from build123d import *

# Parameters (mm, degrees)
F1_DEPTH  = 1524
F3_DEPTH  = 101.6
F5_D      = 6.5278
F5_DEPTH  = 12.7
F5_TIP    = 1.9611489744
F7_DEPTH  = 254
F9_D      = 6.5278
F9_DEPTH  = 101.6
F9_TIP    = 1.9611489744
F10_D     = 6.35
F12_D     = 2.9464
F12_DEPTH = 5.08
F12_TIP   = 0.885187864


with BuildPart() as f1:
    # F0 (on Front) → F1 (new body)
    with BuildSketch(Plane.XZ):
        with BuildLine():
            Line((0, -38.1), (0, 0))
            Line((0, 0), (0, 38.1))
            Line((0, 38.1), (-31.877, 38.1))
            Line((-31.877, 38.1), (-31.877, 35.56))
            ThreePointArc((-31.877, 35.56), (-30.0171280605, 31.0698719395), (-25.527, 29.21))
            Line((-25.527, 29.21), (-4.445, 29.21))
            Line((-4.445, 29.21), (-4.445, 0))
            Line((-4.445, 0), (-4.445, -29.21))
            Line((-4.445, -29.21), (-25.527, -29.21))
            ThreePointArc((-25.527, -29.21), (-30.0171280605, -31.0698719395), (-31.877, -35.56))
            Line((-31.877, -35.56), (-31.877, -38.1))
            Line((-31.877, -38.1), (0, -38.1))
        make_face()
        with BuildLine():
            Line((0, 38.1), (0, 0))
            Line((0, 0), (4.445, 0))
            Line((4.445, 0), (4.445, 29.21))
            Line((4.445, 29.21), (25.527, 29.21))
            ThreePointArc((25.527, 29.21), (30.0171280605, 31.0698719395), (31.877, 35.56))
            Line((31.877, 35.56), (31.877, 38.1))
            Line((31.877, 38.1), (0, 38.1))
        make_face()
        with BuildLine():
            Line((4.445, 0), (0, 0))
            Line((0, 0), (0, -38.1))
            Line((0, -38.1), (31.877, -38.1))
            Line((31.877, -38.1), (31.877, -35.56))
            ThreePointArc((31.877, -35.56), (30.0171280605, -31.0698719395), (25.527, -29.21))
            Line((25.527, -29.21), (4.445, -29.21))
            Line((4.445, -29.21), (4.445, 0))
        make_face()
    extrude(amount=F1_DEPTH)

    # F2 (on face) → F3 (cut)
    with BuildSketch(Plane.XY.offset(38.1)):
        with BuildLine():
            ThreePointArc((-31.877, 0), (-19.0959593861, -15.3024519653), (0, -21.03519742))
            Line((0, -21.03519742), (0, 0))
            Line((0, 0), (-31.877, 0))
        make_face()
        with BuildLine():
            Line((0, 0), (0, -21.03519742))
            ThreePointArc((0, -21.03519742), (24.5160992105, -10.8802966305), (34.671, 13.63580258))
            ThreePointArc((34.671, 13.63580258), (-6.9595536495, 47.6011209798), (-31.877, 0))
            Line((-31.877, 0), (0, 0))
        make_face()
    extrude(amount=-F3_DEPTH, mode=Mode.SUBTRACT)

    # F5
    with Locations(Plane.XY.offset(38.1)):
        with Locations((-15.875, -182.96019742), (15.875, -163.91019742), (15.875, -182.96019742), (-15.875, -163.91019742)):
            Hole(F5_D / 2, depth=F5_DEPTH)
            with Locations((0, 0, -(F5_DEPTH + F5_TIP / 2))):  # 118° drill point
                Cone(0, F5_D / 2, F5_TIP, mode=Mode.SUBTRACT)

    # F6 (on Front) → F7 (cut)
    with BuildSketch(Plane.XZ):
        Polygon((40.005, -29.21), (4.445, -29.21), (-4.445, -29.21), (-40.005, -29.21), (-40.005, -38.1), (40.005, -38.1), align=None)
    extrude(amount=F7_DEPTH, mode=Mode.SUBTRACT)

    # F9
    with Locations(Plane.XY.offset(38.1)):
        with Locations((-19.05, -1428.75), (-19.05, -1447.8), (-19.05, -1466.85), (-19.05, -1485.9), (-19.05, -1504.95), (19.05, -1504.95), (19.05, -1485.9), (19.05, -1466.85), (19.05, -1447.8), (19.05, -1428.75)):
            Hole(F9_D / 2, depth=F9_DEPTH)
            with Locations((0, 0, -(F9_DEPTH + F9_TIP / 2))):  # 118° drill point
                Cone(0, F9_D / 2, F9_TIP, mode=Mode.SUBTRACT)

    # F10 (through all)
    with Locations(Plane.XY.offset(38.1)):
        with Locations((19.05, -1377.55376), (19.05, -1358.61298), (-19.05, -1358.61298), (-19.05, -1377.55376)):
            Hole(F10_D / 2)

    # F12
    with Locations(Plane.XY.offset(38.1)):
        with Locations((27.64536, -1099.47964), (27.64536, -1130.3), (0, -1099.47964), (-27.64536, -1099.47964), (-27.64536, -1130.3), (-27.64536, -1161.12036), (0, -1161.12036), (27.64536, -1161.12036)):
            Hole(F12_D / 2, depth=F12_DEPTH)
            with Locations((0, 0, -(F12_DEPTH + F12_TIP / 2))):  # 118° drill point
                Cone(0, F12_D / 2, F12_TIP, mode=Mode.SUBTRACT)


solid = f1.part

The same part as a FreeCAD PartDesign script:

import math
import FreeCAD as App
import Part
import Sketcher
Q = App.Units.Quantity


def add_polygon(sketch, points):
    """Adds a closed chain of lines whose ends are joined by coincident constraints."""
    first, n = sketch.GeometryCount, len(points)
    for a, b in zip(points, points[1:] + points[:1]):
        sketch.addGeometry(Part.LineSegment(App.Vector(*a, 0), App.Vector(*b, 0)), False)
    for i in range(n):
        sketch.addConstraint(Sketcher.Constraint("Coincident", first + i, 2, first + (i + 1) % n, 1))

doc = App.newDocument("Part")
body = doc.addObject("PartDesign::Body", "Body")

# Sketch on XZ plane
sketch1 = body.newObject("Sketcher::SketchObject", "Sketch")
sketch1.AttachmentSupport = (doc.getObject("XZ_Plane"), [""])
sketch1.MapMode = "FlatFace"
sketch1.addGeometry([
    Part.LineSegment(App.Vector(4.4, 29.2, 0), App.Vector(25.5, 29.2, 0)),  # 0
    Part.ArcOfCircle(Part.Circle(App.Vector(25.5, 35.6, 0), App.Vector(0, 0, 1), 6.3), math.radians(-90), math.radians(0)),  # 1
    Part.LineSegment(App.Vector(31.9, 35.6, 0), App.Vector(31.9, 38.1, 0)),  # 2
    Part.LineSegment(App.Vector(31.9, 38.1, 0), App.Vector(-31.9, 38.1, 0)),  # 3
    Part.LineSegment(App.Vector(-31.9, 38.1, 0), App.Vector(-31.9, 35.6, 0)),  # 4
    Part.ArcOfCircle(Part.Circle(App.Vector(-25.5, 35.6, 0), App.Vector(0, 0, 1), 6.3), math.radians(180), math.radians(270)),  # 5
    Part.LineSegment(App.Vector(-25.5, 29.2, 0), App.Vector(-4.4, 29.2, 0)),  # 6
    Part.LineSegment(App.Vector(-4.4, 29.2, 0), App.Vector(-4.4, -29.2, 0)),  # 7
    Part.LineSegment(App.Vector(-4.4, -29.2, 0), App.Vector(-25.5, -29.2, 0)),  # 8
    Part.ArcOfCircle(Part.Circle(App.Vector(-25.5, -35.6, 0), App.Vector(0, 0, 1), 6.3), math.radians(90), math.radians(180)),  # 9
    Part.LineSegment(App.Vector(-31.9, -35.6, 0), App.Vector(-31.9, -38.1, 0)),  # 10
    Part.LineSegment(App.Vector(-31.9, -38.1, 0), App.Vector(31.9, -38.1, 0)),  # 11
    Part.LineSegment(App.Vector(31.9, -38.1, 0), App.Vector(31.9, -35.6, 0)),  # 12
    Part.ArcOfCircle(Part.Circle(App.Vector(25.5, -35.6, 0), App.Vector(0, 0, 1), 6.3), math.radians(0), math.radians(90)),  # 13
    Part.LineSegment(App.Vector(25.5, -29.2, 0), App.Vector(4.4, -29.2, 0)),  # 14
    Part.LineSegment(App.Vector(4.4, -29.2, 0), App.Vector(4.4, 29.2, 0)),  # 15
], False)
sketch1.addConstraint([
    Sketcher.Constraint("Tangent", 0, 2, 1, 1),
    Sketcher.Constraint("Tangent", 1, 2, 2, 1),
    Sketcher.Constraint("Coincident", 2, 2, 3, 1),
    Sketcher.Constraint("Coincident", 3, 2, 4, 1),
    Sketcher.Constraint("Tangent", 4, 2, 5, 1),
    Sketcher.Constraint("Tangent", 5, 2, 6, 1),
    Sketcher.Constraint("Coincident", 6, 2, 7, 1),
    Sketcher.Constraint("Coincident", 7, 2, 8, 1),
    Sketcher.Constraint("Tangent", 8, 2, 9, 1),
    Sketcher.Constraint("Tangent", 9, 2, 10, 1),
    Sketcher.Constraint("Coincident", 10, 2, 11, 1),
    Sketcher.Constraint("Coincident", 11, 2, 12, 1),
    Sketcher.Constraint("Tangent", 12, 2, 13, 1),
    Sketcher.Constraint("Tangent", 13, 2, 14, 1),
    Sketcher.Constraint("Coincident", 14, 2, 15, 1),
    Sketcher.Constraint("Coincident", 15, 2, 0, 1),
    Sketcher.Constraint("Horizontal", 0),
    Sketcher.Constraint("Vertical", 2),
    Sketcher.Constraint("Horizontal", 3),
    Sketcher.Constraint("Vertical", 4),
    Sketcher.Constraint("Horizontal", 6),
    Sketcher.Constraint("Vertical", 7),
    Sketcher.Constraint("Horizontal", 8),
    Sketcher.Constraint("Vertical", 10),
    Sketcher.Constraint("Horizontal", 11),
    Sketcher.Constraint("Vertical", 12),
    Sketcher.Constraint("Horizontal", 14),
    Sketcher.Constraint("Vertical", 15),
    Sketcher.Constraint("Equal", 1, 5),
    Sketcher.Constraint("Equal", 5, 9),
    Sketcher.Constraint("Equal", 9, 13),
    Sketcher.Constraint("Symmetric", 1, 3, 9, 3, -1, 1),
    Sketcher.Constraint("Symmetric", 5, 3, 13, 3, -1, 1),
    Sketcher.Constraint("Symmetric", 1, 3, 5, 3, -2),
    Sketcher.Constraint("Equal", 0, 6),
    Sketcher.Constraint("Equal", 4, 10),
    Sketcher.Constraint("Radius", 1, Q("0.25 in")),
    Sketcher.Constraint("DistanceY", 2, 1, 2, 2, Q("0.1 in")),
    Sketcher.Constraint("DistanceY", 7, 2, 7, 1, Q("2.3 in")),
    Sketcher.Constraint("DistanceX", 0, 1, 0, 2, Q("0.83 in")),
    Sketcher.Constraint("DistanceX", 3, 2, 3, 1, Q("2.51 in")),
])
pad1 = body.newObject("PartDesign::Pad", "Pad")
pad1.Profile = sketch1
pad1.Length = Q("60 in")

# Sketch on XY plane
sketch2 = body.newObject("Sketcher::SketchObject", "Sketch001")
sketch2.AttachmentSupport = (doc.getObject("XY_Plane"), [""])
sketch2.MapMode = "FlatFace"
sketch2.AttachmentOffset = App.Placement(App.Vector(0, 0, 1.5 * 25.4), App.Rotation())
sketch2.addGeometry([
    Part.ArcOfCircle(Part.Circle(App.Vector(0, 14, 0), App.Vector(0, 0, 1), 35), math.radians(-157), math.radians(-90)),
    Part.ArcOfCircle(Part.Circle(App.Vector(0, 14, 0), App.Vector(0, 0, 1), 35), math.radians(-90), math.radians(0)),
    Part.ArcOfCircle(Part.Circle(App.Vector(0, 14, 0), App.Vector(0, 0, 1), 35), math.radians(0), math.radians(203)),
], False)
sketch2.addConstraint([
    Sketcher.Constraint("Tangent", 0, 2, 1, 1),
    Sketcher.Constraint("Tangent", 1, 2, 2, 1),
    Sketcher.Constraint("Tangent", 2, 2, 0, 1),
    Sketcher.Constraint("PointOnObject", 0, 3, -2),
    Sketcher.Constraint("PointOnObject", 0, 2, -2),
    Sketcher.Constraint("PointOnObject", 2, 2, -1),
    Sketcher.Constraint("Horizontal", 2, 3, 1, 2),
    Sketcher.Constraint("Radius", 0, Q("1.365 in")),
    Sketcher.Constraint("DistanceX", 2, 2, 1, 2, Q("2.62 in")),
])
pocket1 = body.newObject("PartDesign::Pocket", "Pocket")
pocket1.Profile = sketch2
pocket1.Length = Q("4 in")

# Sketch on XY plane
sketch3 = body.newObject("Sketcher::SketchObject", "Sketch002")
sketch3.AttachmentSupport = (doc.getObject("XY_Plane"), [""])
sketch3.MapMode = "FlatFace"
sketch3.AttachmentOffset = App.Placement(App.Vector(0, 0, 1.5 * 25.4), App.Rotation())
sketch3.addGeometry([
    Part.Circle(App.Vector(-15.9, -183, 0), App.Vector(0, 0, 1), 3.3),
    Part.Circle(App.Vector(15.9, -163.9, 0), App.Vector(0, 0, 1), 3.3),
    Part.Circle(App.Vector(15.9, -183, 0), App.Vector(0, 0, 1), 3.3),
    Part.Circle(App.Vector(-15.9, -163.9, 0), App.Vector(0, 0, 1), 3.3),
], False)
sketch3.addConstraint([
    Sketcher.Constraint("Equal", 0, 1),
    Sketcher.Constraint("Equal", 1, 2),
    Sketcher.Constraint("Equal", 2, 3),
    Sketcher.Constraint("Symmetric", 0, 3, 2, 3, -2),
    Sketcher.Constraint("Symmetric", 1, 3, 3, 3, -2),
    Sketcher.Constraint("Vertical", 1, 3, 2, 3),
    Sketcher.Constraint("Diameter", 0, Q("0.257 in")),
    Sketcher.Constraint("DistanceX", 0, 3, 1, 3, Q("1.25 in")),
    Sketcher.Constraint("DistanceY", 0, 3, 1, 3, Q("0.75 in")),
    Sketcher.Constraint("DistanceY", 0, 3, -1, 1, 182.960197),
])
doc.recompute()
hole = body.newObject("PartDesign::Hole", "Hole")
hole.Profile = sketch3
hole.ThreadType = "None"
hole.Diameter = Q("0.257 in")
hole.DepthType = "Dimension"
hole.Depth = Q("0.5 in")
hole.DrillPoint = "Angled"
hole.DrillPointAngle = 118

# Sketch on XZ plane
sketch4 = body.newObject("Sketcher::SketchObject", "Sketch003")
sketch4.AttachmentSupport = (doc.getObject("XZ_Plane"), [""])
sketch4.MapMode = "FlatFace"
add_polygon(sketch4, [(40, -29), (-40, -29), (-40, -38), (40, -38)])  # lines 0-3
sketch4.addConstraint([
    Sketcher.Constraint("Horizontal", 0),
    Sketcher.Constraint("Vertical", 1),
    Sketcher.Constraint("Horizontal", 2),
    Sketcher.Constraint("Vertical", 3),
    Sketcher.Constraint("DistanceX", 0, 2, 0, 1, Q("3.15 in")),
    Sketcher.Constraint("DistanceY", 1, 2, 1, 1, Q("0.35 in")),
    Sketcher.Constraint("DistanceY", 1, 2, -1, 1, Q("1.5 in")),
    Sketcher.Constraint("DistanceX", 0, 2, -1, 1, Q("1.575 in")),
])
pocket2 = body.newObject("PartDesign::Pocket", "Pocket001")
pocket2.Profile = sketch4
pocket2.Length = Q("10 in")
pocket2.Reversed = True

# Sketch on XY plane
sketch5 = body.newObject("Sketcher::SketchObject", "Sketch004")
sketch5.AttachmentSupport = (doc.getObject("XY_Plane"), [""])
sketch5.MapMode = "FlatFace"
sketch5.AttachmentOffset = App.Placement(App.Vector(0, 0, 1.5 * 25.4), App.Rotation())
sketch5.addGeometry([
    Part.Circle(App.Vector(-19.1, -1428.8, 0), App.Vector(0, 0, 1), 3.3),  # 0
    Part.Circle(App.Vector(-19.1, -1447.8, 0), App.Vector(0, 0, 1), 3.3),  # 1
    Part.Circle(App.Vector(-19.1, -1466.8, 0), App.Vector(0, 0, 1), 3.3),  # 2
    Part.Circle(App.Vector(-19.1, -1485.9, 0), App.Vector(0, 0, 1), 3.3),  # 3
    Part.Circle(App.Vector(-19.1, -1505, 0), App.Vector(0, 0, 1), 3.3),  # 4
    Part.Circle(App.Vector(19.1, -1505, 0), App.Vector(0, 0, 1), 3.3),  # 5
    Part.Circle(App.Vector(19.1, -1485.9, 0), App.Vector(0, 0, 1), 3.3),  # 6
    Part.Circle(App.Vector(19.1, -1466.8, 0), App.Vector(0, 0, 1), 3.3),  # 7
    Part.Circle(App.Vector(19.1, -1447.8, 0), App.Vector(0, 0, 1), 3.3),  # 8
    Part.Circle(App.Vector(19.1, -1428.8, 0), App.Vector(0, 0, 1), 3.3),  # 9
], False)
sketch5.addConstraint([
    Sketcher.Constraint("Equal", 0, 1),
    Sketcher.Constraint("Equal", 1, 2),
    Sketcher.Constraint("Equal", 2, 3),
    Sketcher.Constraint("Equal", 3, 4),
    Sketcher.Constraint("Equal", 4, 5),
    Sketcher.Constraint("Equal", 5, 6),
    Sketcher.Constraint("Equal", 6, 7),
    Sketcher.Constraint("Equal", 7, 8),
    Sketcher.Constraint("Equal", 8, 9),
    Sketcher.Constraint("Symmetric", 4, 3, 5, 3, -2),
    Sketcher.Constraint("Symmetric", 3, 3, 6, 3, -2),
    Sketcher.Constraint("Symmetric", 2, 3, 7, 3, -2),
    Sketcher.Constraint("Symmetric", 1, 3, 8, 3, -2),
    Sketcher.Constraint("Symmetric", 0, 3, 9, 3, -2),
    Sketcher.Constraint("Vertical", 0, 3, 1, 3),
    Sketcher.Constraint("Vertical", 1, 3, 2, 3),
    Sketcher.Constraint("Vertical", 2, 3, 3, 3),
    Sketcher.Constraint("Vertical", 3, 3, 4, 3),
    Sketcher.Constraint("Diameter", 0, Q("0.257 in")),
    Sketcher.Constraint("DistanceY", 1, 3, -1, 1, Q("57 in")),
    Sketcher.Constraint("DistanceY", 4, 3, 0, 3, Q("3 in")),
    Sketcher.Constraint("DistanceY", 3, 3, -1, 1, Q("58.5 in")),
    Sketcher.Constraint("DistanceY", 2, 3, 0, 3, Q("1.5 in")),
    Sketcher.Constraint("DistanceX", 4, 3, 5, 3, Q("1.5 in")),
    Sketcher.Constraint("DistanceY", 0, 3, -1, 1, Q("56.25 in")),
])
doc.recompute()
hole2 = body.newObject("PartDesign::Hole", "Hole001")
hole2.Profile = sketch5
hole2.ThreadType = "None"
hole2.Diameter = Q("0.257 in")
hole2.DepthType = "Dimension"
hole2.Depth = Q("4 in")
hole2.DrillPoint = "Angled"
hole2.DrillPointAngle = 118

# Sketch on XY plane
sketch6 = body.newObject("Sketcher::SketchObject", "Sketch005")
sketch6.AttachmentSupport = (doc.getObject("XY_Plane"), [""])
sketch6.MapMode = "FlatFace"
sketch6.AttachmentOffset = App.Placement(App.Vector(0, 0, 1.5 * 25.4), App.Rotation())
sketch6.addGeometry([
    Part.Circle(App.Vector(19.1, -1377.6, 0), App.Vector(0, 0, 1), 3.2),
    Part.Circle(App.Vector(19.1, -1358.6, 0), App.Vector(0, 0, 1), 3.2),
    Part.Circle(App.Vector(-19.1, -1358.6, 0), App.Vector(0, 0, 1), 3.2),
    Part.Circle(App.Vector(-19.1, -1377.6, 0), App.Vector(0, 0, 1), 3.2),
], False)
sketch6.addConstraint([
    Sketcher.Constraint("Equal", 0, 1),
    Sketcher.Constraint("Equal", 1, 2),
    Sketcher.Constraint("Equal", 2, 3),
    Sketcher.Constraint("Symmetric", 1, 3, 2, 3, -2),
    Sketcher.Constraint("Symmetric", 0, 3, 3, 3, -2),
    Sketcher.Constraint("Vertical", 0, 3, 1, 3),
    Sketcher.Constraint("Diameter", 0, Q("0.25 in")),
    Sketcher.Constraint("DistanceX", 2, 3, 1, 3, Q("1.5 in")),
    Sketcher.Constraint("DistanceY", 0, 3, -1, 1, Q("54.2344 in")),
    Sketcher.Constraint("DistanceY", 1, 3, -1, 1, Q("53.4887 in")),
])
doc.recompute()
hole3 = body.newObject("PartDesign::Hole", "Hole002")
hole3.Profile = sketch6
hole3.ThreadType = "None"
hole3.Diameter = Q("0.25 in")
hole3.DepthType = "ThroughAll"

# Sketch on XY plane
sketch7 = body.newObject("Sketcher::SketchObject", "Sketch006")
sketch7.AttachmentSupport = (doc.getObject("XY_Plane"), [""])
sketch7.MapMode = "FlatFace"
sketch7.AttachmentOffset = App.Placement(App.Vector(0, 0, 1.5 * 25.4), App.Rotation())
sketch7.addGeometry([
    Part.Circle(App.Vector(27.6, -1099.5, 0), App.Vector(0, 0, 1), 1.5),  # 0
    Part.Circle(App.Vector(27.6, -1130.3, 0), App.Vector(0, 0, 1), 1.5),  # 1
    Part.Circle(App.Vector(0, -1099.5, 0), App.Vector(0, 0, 1), 1.5),  # 2
    Part.Circle(App.Vector(-27.6, -1099.5, 0), App.Vector(0, 0, 1), 1.5),  # 3
    Part.Circle(App.Vector(-27.6, -1130.3, 0), App.Vector(0, 0, 1), 1.5),  # 4
    Part.Circle(App.Vector(-27.6, -1161.1, 0), App.Vector(0, 0, 1), 1.5),  # 5
    Part.Circle(App.Vector(0, -1161.1, 0), App.Vector(0, 0, 1), 1.5),  # 6
    Part.Circle(App.Vector(27.6, -1161.1, 0), App.Vector(0, 0, 1), 1.5),  # 7
], False)
sketch7.addConstraint([
    Sketcher.Constraint("Equal", 0, 1),
    Sketcher.Constraint("Equal", 1, 2),
    Sketcher.Constraint("Equal", 2, 3),
    Sketcher.Constraint("Equal", 3, 4),
    Sketcher.Constraint("Equal", 4, 5),
    Sketcher.Constraint("Equal", 5, 6),
    Sketcher.Constraint("Equal", 6, 7),
    Sketcher.Constraint("Symmetric", 0, 3, 3, 3, -2),
    Sketcher.Constraint("Symmetric", 1, 3, 4, 3, -2),
    Sketcher.Constraint("Symmetric", 5, 3, 7, 3, -2),
    Sketcher.Constraint("PointOnObject", 2, 3, -2),
    Sketcher.Constraint("PointOnObject", 6, 3, -2),
    Sketcher.Constraint("Horizontal", 0, 3, 2, 3),
    Sketcher.Constraint("Horizontal", 5, 3, 6, 3),
    Sketcher.Constraint("Vertical", 0, 3, 1, 3),
    Sketcher.Constraint("Vertical", 4, 3, 5, 3),
    Sketcher.Constraint("Diameter", 0, Q("0.116 in")),
    Sketcher.Constraint("DistanceY", 1, 3, -1, 1, Q("44.5 in")),
    Sketcher.Constraint("DistanceX", -1, 1, 0, 3, Q("1.0884 in")),
    Sketcher.Constraint("DistanceY", 0, 3, -1, 1, Q("43.2866 in")),
    Sketcher.Constraint("DistanceY", 5, 3, -1, 1, Q("45.7134 in")),
])
doc.recompute()
hole4 = body.newObject("PartDesign::Hole", "Hole003")
hole4.Profile = sketch7
hole4.ThreadType = "None"
hole4.Diameter = Q("0.116 in")
hole4.DepthType = "Dimension"
hole4.Depth = Q("0.2 in")
hole4.DrillPoint = "Angled"
hole4.DrillPointAngle = 118

doc.recompute()
